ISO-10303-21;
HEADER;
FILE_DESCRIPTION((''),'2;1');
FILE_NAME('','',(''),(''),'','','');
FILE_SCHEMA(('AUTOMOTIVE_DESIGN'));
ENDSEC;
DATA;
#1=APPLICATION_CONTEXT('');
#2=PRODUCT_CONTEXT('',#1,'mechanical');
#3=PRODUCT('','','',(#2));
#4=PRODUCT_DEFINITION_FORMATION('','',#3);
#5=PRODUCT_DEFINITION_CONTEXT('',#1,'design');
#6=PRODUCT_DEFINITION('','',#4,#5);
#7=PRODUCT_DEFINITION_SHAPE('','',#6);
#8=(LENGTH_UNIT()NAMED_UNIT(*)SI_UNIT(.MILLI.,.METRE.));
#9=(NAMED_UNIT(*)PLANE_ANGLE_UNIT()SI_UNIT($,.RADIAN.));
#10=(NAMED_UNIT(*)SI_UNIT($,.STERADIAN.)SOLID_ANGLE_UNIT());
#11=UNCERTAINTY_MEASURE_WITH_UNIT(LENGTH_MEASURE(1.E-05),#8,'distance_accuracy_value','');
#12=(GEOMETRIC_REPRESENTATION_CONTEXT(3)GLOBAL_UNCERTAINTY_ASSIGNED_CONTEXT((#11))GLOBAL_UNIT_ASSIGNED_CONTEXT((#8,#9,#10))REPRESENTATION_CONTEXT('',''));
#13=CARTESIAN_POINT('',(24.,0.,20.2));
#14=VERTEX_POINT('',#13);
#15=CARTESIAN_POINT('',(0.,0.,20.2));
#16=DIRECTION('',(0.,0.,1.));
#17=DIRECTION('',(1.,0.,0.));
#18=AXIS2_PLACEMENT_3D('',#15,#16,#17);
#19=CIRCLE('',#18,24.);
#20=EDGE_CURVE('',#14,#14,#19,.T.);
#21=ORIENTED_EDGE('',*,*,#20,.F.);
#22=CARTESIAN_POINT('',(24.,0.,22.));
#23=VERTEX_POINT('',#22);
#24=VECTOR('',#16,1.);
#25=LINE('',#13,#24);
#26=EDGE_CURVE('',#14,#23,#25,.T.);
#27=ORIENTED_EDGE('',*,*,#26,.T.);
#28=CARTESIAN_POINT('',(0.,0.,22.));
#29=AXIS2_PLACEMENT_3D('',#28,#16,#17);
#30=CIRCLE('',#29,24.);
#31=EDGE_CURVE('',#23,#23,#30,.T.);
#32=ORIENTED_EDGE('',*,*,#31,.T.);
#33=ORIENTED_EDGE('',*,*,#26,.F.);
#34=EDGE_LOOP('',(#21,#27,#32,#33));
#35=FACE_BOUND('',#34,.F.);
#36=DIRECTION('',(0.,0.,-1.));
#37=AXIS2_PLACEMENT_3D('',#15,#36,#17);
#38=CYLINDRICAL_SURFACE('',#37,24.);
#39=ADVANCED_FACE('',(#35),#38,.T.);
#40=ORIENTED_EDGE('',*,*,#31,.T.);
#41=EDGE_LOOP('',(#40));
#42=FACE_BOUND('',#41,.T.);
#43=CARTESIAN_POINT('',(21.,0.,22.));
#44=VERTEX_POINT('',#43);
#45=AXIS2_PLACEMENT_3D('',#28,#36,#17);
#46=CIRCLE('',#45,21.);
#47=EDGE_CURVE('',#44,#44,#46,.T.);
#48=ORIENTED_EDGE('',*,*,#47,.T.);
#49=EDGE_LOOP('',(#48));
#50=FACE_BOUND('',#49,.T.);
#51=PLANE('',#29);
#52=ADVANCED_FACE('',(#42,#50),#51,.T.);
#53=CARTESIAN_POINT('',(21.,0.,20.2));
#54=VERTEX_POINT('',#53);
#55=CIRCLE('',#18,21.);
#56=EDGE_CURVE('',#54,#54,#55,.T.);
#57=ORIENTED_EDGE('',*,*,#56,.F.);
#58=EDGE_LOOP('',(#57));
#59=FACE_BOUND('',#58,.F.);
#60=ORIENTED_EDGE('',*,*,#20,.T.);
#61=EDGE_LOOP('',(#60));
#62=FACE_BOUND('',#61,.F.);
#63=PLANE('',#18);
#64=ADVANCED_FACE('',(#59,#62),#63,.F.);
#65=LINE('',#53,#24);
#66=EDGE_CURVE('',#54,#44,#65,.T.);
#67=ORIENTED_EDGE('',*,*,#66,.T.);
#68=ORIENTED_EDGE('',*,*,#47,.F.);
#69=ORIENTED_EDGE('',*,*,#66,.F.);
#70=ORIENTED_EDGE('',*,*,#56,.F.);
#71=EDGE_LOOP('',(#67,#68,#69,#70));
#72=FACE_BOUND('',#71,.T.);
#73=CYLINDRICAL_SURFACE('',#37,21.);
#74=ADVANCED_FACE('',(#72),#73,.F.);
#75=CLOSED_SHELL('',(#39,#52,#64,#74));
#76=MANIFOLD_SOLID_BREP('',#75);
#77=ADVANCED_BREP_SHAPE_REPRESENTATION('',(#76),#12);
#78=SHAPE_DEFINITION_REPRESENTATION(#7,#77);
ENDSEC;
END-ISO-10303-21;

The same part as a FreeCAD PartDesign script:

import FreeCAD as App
import Part
import Sketcher

V = App.Vector

doc = App.newDocument("Part")
params = doc.addObject("Spreadsheet::Sheet", "Params")
for row, (alias, value) in enumerate([
    ("sketch1_diameter", "42 mm"),
    ("pad1_length", "2 mm"),
    ("sketch2_diameter", "48 mm"),
    ("pad2_length", "1.8 mm"),
], start=1):
    params.set(f"A{row}", alias)
    params.set(f"B{row}", "=" + value)
    params.setAlias(f"B{row}", alias)

body = doc.addObject("PartDesign::Body", "Body")

sketch1 = body.newObject("Sketcher::SketchObject", "Sketch")
sketch1.AttachmentSupport = (doc.getObject("XY_Plane"), [""])
sketch1.MapMode = "FlatFace"
sketch1.AttachmentOffset = App.Placement(V(0, 0, 20), App.Rotation())
sketch1.addGeometry(Part.Circle(V(0, 0, 0), V(0, 0, 1), 21), False)
sketch1.addConstraint([
    Sketcher.Constraint("Coincident", 0, 3, -1, 1),
    Sketcher.Constraint("Diameter", 0, 42.0),
])
sketch1.setExpression("Constraints[1]", "Params.sketch1_diameter")
pad1 = body.newObject("PartDesign::Pad", "Pad")
pad1.Profile = sketch1
pad1.setExpression("Length", "Params.pad1_length")
body2 = doc.addObject("PartDesign::Body", "Body001")

sketch2 = body2.newObject("Sketcher::SketchObject", "Sketch001")
sketch2.AttachmentSupport = (doc.getObject("XY_Plane001"), [""])
sketch2.MapMode = "FlatFace"
sketch2.AttachmentOffset = App.Placement(V(0, 0, 20), App.Rotation())
sketch2.addGeometry(Part.Circle(V(0, 0, 0), V(0, 0, 1), 24), False)
sketch2.addConstraint([
    Sketcher.Constraint("Coincident", 0, 3, -1, 1),
    Sketcher.Constraint("Diameter", 0, 48.0),
])
sketch2.setExpression("Constraints[1]", "Params.sketch2_diameter")
pad2 = body2.newObject("PartDesign::Pad", "Pad001")
pad2.Profile = sketch2
pad2.setExpression("Length", "Params.pad2_length")
doc.recompute()

boolean = body2.newObject("PartDesign::Boolean", "Boolean")
boolean.Type = "Cut"
boolean.addObjects([body])
body3 = doc.addObject("PartDesign::Body", "Body002")
doc.recompute()

body2.Placement = App.Placement(V(0, 0, 0.2), App.Rotation(V(0, 0, 1), 0))
boolean2 = body3.newObject("PartDesign::Boolean", "Boolean001")
boolean2.Type = "Fuse"
boolean2.addObjects([body2])

doc.recompute()
